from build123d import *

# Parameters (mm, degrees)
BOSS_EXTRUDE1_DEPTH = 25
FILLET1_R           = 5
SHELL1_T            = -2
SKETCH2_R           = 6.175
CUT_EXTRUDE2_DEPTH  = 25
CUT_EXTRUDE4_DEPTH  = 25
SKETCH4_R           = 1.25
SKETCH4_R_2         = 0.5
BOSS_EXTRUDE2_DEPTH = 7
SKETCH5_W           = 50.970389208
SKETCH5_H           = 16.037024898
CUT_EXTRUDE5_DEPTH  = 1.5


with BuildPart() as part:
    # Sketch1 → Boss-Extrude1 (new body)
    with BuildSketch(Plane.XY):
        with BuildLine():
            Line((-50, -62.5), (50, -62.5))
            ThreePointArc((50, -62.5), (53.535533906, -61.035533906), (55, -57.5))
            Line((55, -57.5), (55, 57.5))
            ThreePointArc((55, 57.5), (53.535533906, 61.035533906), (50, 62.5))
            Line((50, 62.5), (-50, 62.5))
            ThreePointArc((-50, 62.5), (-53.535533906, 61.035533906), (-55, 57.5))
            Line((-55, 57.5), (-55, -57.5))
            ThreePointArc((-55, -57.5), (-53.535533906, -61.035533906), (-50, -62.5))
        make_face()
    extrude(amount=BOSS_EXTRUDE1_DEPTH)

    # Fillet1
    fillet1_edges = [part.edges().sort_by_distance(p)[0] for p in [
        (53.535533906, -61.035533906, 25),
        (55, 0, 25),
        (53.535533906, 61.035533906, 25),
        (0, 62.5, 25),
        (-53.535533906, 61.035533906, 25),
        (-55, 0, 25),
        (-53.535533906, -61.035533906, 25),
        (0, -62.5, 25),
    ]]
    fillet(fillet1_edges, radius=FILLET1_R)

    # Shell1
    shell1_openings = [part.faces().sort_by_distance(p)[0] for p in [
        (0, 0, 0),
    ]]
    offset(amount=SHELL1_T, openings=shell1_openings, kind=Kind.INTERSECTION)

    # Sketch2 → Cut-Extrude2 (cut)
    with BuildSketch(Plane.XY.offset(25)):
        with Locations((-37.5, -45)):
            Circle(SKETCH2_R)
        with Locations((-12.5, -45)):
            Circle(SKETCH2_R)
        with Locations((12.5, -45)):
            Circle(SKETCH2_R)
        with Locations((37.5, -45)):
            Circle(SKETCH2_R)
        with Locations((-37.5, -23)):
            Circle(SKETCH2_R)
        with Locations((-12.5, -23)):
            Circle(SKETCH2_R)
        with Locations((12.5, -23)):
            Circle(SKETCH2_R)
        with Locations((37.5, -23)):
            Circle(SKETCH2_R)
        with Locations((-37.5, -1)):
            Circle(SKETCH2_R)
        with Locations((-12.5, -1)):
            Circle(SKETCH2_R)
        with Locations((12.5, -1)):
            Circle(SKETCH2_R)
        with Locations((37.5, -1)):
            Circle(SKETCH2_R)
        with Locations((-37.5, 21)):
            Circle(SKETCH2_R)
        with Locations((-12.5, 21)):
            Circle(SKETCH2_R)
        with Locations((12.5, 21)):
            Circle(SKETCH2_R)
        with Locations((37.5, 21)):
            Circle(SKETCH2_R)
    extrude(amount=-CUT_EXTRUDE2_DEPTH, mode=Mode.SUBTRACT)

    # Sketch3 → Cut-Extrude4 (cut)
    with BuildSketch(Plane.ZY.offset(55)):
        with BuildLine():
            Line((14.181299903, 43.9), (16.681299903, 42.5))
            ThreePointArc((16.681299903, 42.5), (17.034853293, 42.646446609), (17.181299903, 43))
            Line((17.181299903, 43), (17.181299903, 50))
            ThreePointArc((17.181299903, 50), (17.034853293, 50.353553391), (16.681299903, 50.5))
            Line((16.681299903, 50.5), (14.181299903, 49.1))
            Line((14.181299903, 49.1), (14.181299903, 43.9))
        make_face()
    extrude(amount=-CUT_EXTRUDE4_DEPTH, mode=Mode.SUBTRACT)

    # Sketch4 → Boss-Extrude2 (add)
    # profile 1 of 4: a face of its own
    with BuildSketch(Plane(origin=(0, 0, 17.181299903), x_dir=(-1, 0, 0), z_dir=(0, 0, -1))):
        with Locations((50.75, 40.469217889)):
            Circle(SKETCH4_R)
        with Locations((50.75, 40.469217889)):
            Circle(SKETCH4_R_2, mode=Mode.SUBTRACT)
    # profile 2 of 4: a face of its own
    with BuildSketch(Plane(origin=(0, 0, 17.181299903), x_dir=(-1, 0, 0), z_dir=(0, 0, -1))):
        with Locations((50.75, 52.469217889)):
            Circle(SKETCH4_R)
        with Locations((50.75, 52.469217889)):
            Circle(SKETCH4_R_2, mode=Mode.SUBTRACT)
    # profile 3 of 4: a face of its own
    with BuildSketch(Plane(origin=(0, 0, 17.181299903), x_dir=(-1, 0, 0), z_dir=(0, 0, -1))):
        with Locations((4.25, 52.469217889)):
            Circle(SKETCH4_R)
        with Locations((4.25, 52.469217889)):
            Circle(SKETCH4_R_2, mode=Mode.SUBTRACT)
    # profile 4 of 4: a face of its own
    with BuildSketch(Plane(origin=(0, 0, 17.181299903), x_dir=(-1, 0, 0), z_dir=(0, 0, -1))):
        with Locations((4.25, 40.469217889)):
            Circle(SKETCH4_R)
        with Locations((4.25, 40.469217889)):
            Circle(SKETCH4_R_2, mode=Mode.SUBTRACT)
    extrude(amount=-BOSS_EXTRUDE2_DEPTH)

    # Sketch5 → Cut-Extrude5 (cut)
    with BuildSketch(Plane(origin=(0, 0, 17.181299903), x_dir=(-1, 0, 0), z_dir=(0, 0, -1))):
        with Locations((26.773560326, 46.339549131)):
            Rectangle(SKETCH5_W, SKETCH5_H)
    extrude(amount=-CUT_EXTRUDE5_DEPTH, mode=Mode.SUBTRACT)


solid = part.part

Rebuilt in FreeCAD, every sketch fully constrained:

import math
import FreeCAD as App
import Part
import Sketcher

V = App.Vector


def edges_at(feature, points):
    """Names of the edges that pass closest to the given points."""
    edges = feature.Shape.Edges
    near = lambda p: min(range(len(edges)), key=lambda i: edges[i].distToShape(Part.Vertex(*p))[0])
    return sorted({f"Edge{near(p) + 1}" for p in points})


def faces_at(feature, points):
    """Names of the faces that lie closest to the given points."""
    faces = feature.Shape.Faces
    near = lambda p: min(range(len(faces)), key=lambda i: faces[i].distToShape(Part.Vertex(*p))[0])
    return sorted({f"Face{near(p) + 1}" for p in points})

doc = App.newDocument("Part")
params = doc.addObject("Spreadsheet::Sheet", "Params")
for row, (alias, value) in enumerate([
    ("sketch1_radius", "5 mm"),
    ("sketch1_width", "100 mm"),
    ("sketch1_height", "115 mm"),
    ("pad1_length", "25 mm"),
    ("fillet_radius", "5 mm"),
    ("thickness_wall", "2 mm"),
    ("sketch2_diameter", "12.35 mm"),
    ("pocket1_length", "25 mm"),
    ("sketch3_radius", "0.5 mm"),
    ("sketch3_width", "7 mm"),
    ("sketch3_width2", "5.2 mm"),
    ("pocket2_length", "25 mm"),
    ("sketch4_diameter", "1 mm"),
    ("sketch4_diameter2", "2.5 mm"),
    ("pad2_length", "7 mm"),
    ("pocket3_length", "1.5 mm"),
], start=1):
    params.set(f"A{row}", alias)
    params.set(f"B{row}", "=" + value)
    params.setAlias(f"B{row}", alias)

body = doc.addObject("PartDesign::Body", "Body")

sketch1 = body.newObject("Sketcher::SketchObject", "Sketch")
sketch1.AttachmentSupport = (doc.getObject("XY_Plane"), [""])
sketch1.MapMode = "FlatFace"
sketch1.addGeometry(Part.LineSegment(V(-50, -62, 0), V(50, -62, 0)), False)
sketch1.addGeometry(Part.ArcOfCircle(Part.Circle(V(50, -58, 0), V(0, 0, 1), 5), math.radians(-90), math.radians(0)), False)
sketch1.addGeometry(Part.LineSegment(V(55, -58, 0), V(55, 58, 0)), False)
sketch1.addGeometry(Part.ArcOfCircle(Part.Circle(V(50, 58, 0), V(0, 0, 1), 5), math.radians(0), math.radians(90)), False)
sketch1.addGeometry(Part.LineSegment(V(50, 62, 0), V(-50, 62, 0)), False)
sketch1.addGeometry(Part.ArcOfCircle(Part.Circle(V(-50, 58, 0), V(0, 0, 1), 5), math.radians(90), math.radians(180)), False)
sketch1.addGeometry(Part.LineSegment(V(-55, 58, 0), V(-55, -58, 0)), False)
sketch1.addGeometry(Part.ArcOfCircle(Part.Circle(V(-50, -58, 0), V(0, 0, 1), 5), math.radians(180), math.radians(270)), False)
sketch1.addConstraint(Sketcher.Constraint("Tangent", 0, 2, 1, 1))
sketch1.addConstraint(Sketcher.Constraint("Tangent", 1, 2, 2, 1))
sketch1.addConstraint(Sketcher.Constraint("Tangent", 2, 2, 3, 1))
sketch1.addConstraint(Sketcher.Constraint("Tangent", 3, 2, 4, 1))
sketch1.addConstraint(Sketcher.Constraint("Tangent", 4, 2, 5, 1))
sketch1.addConstraint(Sketcher.Constraint("Tangent", 5, 2, 6, 1))
sketch1.addConstraint(Sketcher.Constraint("Tangent", 6, 2, 7, 1))
sketch1.addConstraint(Sketcher.Constraint("Tangent", 7, 2, 0, 1))
sketch1.addConstraint(Sketcher.Constraint("Horizontal", 0))
sketch1.addConstraint(Sketcher.Constraint("Vertical", 2))
sketch1.addConstraint(Sketcher.Constraint("Horizontal", 4))
sketch1.addConstraint(Sketcher.Constraint("Vertical", 6))
sketch1.addConstraint(Sketcher.Constraint("Equal", 1, 3))
sketch1.addConstraint(Sketcher.Constraint("Equal", 3, 5))
sketch1.addConstraint(Sketcher.Constraint("Equal", 5, 7))
sketch1.addConstraint(Sketcher.Constraint("Symmetric", 1, 3, 5, 3, -1, 1))
sketch1.addConstraint(Sketcher.Constraint("Radius", 1, 5.0))
sketch1.addConstraint(Sketcher.Constraint("DistanceX", 0, 1, 0, 2, 100.0))
sketch1.addConstraint(Sketcher.Constraint("DistanceY", 2, 1, 2, 2, 115.0))
sketch1.setExpression("Constraints[16]", "Params.sketch1_radius")
sketch1.setExpression("Constraints[17]", "Params.sketch1_width")
sketch1.setExpression("Constraints[18]", "Params.sketch1_height")
pad1 = body.newObject("PartDesign::Pad", "Pad")
pad1.Profile = sketch1
pad1.setExpression("Length", "Params.pad1_length")
doc.recompute()

fillet = body.newObject("PartDesign::Fillet", "Fillet")
fillet.Base = (pad1, edges_at(pad1, [
    (53.536, -61.036, 25),
    (55, 0, 25),
    (53.536, 61.036, 25),
    (0, 62.5, 25),
    (-53.536, 61.036, 25),
    (-55, 0, 25),
    (-53.536, -61.036, 25),
    (0, -62.5, 25),
]))
fillet.setExpression("Radius", "Params.fillet_radius")
doc.recompute()

thickness = body.newObject("PartDesign::Thickness", "Thickness")
thickness.Base = (fillet, faces_at(fillet, [(0, 0, 0)]))
thickness.setExpression("Value", "Params.thickness_wall")
thickness.Reversed = True
thickness.Join = "Intersection"

sketch2 = body.newObject("Sketcher::SketchObject", "Sketch001")
sketch2.AttachmentSupport = (doc.getObject("XY_Plane"), [""])
sketch2.MapMode = "FlatFace"
sketch2.AttachmentOffset = App.Placement(V(0, 0, 25), App.Rotation())
sketch2.addGeometry(Part.Circle(V(-38, -45, 0), V(0, 0, 1), 6), False)
sketch2.addGeometry(Part.Circle(V(-12, -45, 0), V(0, 0, 1), 6), False)
sketch2.addGeometry(Part.Circle(V(12, -45, 0), V(0, 0, 1), 6), False)
sketch2.addGeometry(Part.Circle(V(38, -45, 0), V(0, 0, 1), 6), False)
sketch2.addGeometry(Part.Circle(V(-38, -23, 0), V(0, 0, 1), 6), False)
sketch2.addGeometry(Part.Circle(V(-12, -23, 0), V(0, 0, 1), 6), False)
sketch2.addGeometry(Part.Circle(V(12, -23, 0), V(0, 0, 1), 6), False)
sketch2.addGeometry(Part.Circle(V(38, -23, 0), V(0, 0, 1), 6), False)
sketch2.addGeometry(Part.Circle(V(-38, -1, 0), V(0, 0, 1), 6), False)
sketch2.addGeometry(Part.Circle(V(-12, -1, 0), V(0, 0, 1), 6), False)
sketch2.addGeometry(Part.Circle(V(12, -1, 0), V(0, 0, 1), 6), False)
sketch2.addGeometry(Part.Circle(V(38, -1, 0), V(0, 0, 1), 6), False)
sketch2.addGeometry(Part.Circle(V(-38, 21, 0), V(0, 0, 1), 6), False)
sketch2.addGeometry(Part.Circle(V(-12, 21, 0), V(0, 0, 1), 6), False)
sketch2.addGeometry(Part.Circle(V(12, 21, 0), V(0, 0, 1), 6), False)
sketch2.addGeometry(Part.Circle(V(38, 21, 0), V(0, 0, 1), 6), False)
sketch2.addConstraint(Sketcher.Constraint("Equal", 0, 1))
sketch2.addConstraint(Sketcher.Constraint("Equal", 1, 2))
sketch2.addConstraint(Sketcher.Constraint("Equal", 2, 3))
sketch2.addConstraint(Sketcher.Constraint("Equal", 3, 4))
sketch2.addConstraint(Sketcher.Constraint("Equal", 4, 5))
sketch2.addConstraint(Sketcher.Constraint("Equal", 5, 6))
sketch2.addConstraint(Sketcher.Constraint("Equal", 6, 7))
sketch2.addConstraint(Sketcher.Constraint("Equal", 7, 8))
sketch2.addConstraint(Sketcher.Constraint("Equal", 8, 9))
sketch2.addConstraint(Sketcher.Constraint("Equal", 9, 10))
sketch2.addConstraint(Sketcher.Constraint("Equal", 10, 11))
sketch2.addConstraint(Sketcher.Constraint("Equal", 11, 12))
sketch2.addConstraint(Sketcher.Constraint("Equal", 12, 13))
sketch2.addConstraint(Sketcher.Constraint("Equal", 13, 14))
sketch2.addConstraint(Sketcher.Constraint("Equal", 14, 15))
sketch2.addConstraint(Sketcher.Constraint("Symmetric", 1, 3, 2, 3, -2))
sketch2.addConstraint(Sketcher.Constraint("Symmetric", 0, 3, 3, 3, -2))
sketch2.addConstraint(Sketcher.Constraint("Symmetric", 5, 3, 6, 3, -2))
sketch2.addConstraint(Sketcher.Constraint("Symmetric", 4, 3, 7, 3, -2))
sketch2.addConstraint(Sketcher.Constraint("Symmetric", 9, 3, 10, 3, -2))
sketch2.addConstraint(Sketcher.Constraint("Symmetric", 8, 3, 11, 3, -2))
sketch2.addConstraint(Sketcher.Constraint("Symmetric", 13, 3, 14, 3, -2))
sketch2.addConstraint(Sketcher.Constraint("Symmetric", 12, 3, 15, 3, -2))
sketch2.addConstraint(Sketcher.Constraint("Horizontal", 0, 3, 1, 3))
sketch2.addConstraint(Sketcher.Constraint("Horizontal", 4, 3, 5, 3))
sketch2.addConstraint(Sketcher.Constraint("Horizontal", 8, 3, 9, 3))
sketch2.addConstraint(Sketcher.Constraint("Horizontal", 12, 3, 13, 3))
sketch2.addConstraint(Sketcher.Constraint("Vertical", 0, 3, 4, 3))
sketch2.addConstraint(Sketcher.Constraint("Vertical", 1, 3, 5, 3))
sketch2.addConstraint(Sketcher.Constraint("Vertical", 4, 3, 8, 3))
sketch2.addConstraint(Sketcher.Constraint("Vertical", 5, 3, 9, 3))
sketch2.addConstraint(Sketcher.Constraint("Vertical", 8, 3, 12, 3))
sketch2.addConstraint(Sketcher.Constraint("Vertical", 9, 3, 13, 3))
sketch2.addConstraint(Sketcher.Constraint("Diameter", 0, 12.35))
sketch2.addConstraint(Sketcher.Constraint("DistanceY", 0, 3, -1, 1, 45.0))
sketch2.addConstraint(Sketcher.Constraint("DistanceY", 4, 3, -1, 1, 23.0))
sketch2.addConstraint(Sketcher.Constraint("DistanceY", 8, 3, -1, 1, 1.0))
sketch2.addConstraint(Sketcher.Constraint("DistanceY", -1, 1, 12, 3, 21.0))
sketch2.addConstraint(Sketcher.Constraint("DistanceX", 0, 3, 1, 3, 25.0))
sketch2.addConstraint(Sketcher.Constraint("DistanceX", 1, 3, 2, 3, 25.0))
sketch2.setExpression("Constraints[33]", "Params.sketch2_diameter")
pocket1 = body.newObject("PartDesign::Pocket", "Pocket")
pocket1.Profile = sketch2
pocket1.setExpression("Length", "Params.pocket1_length")

sketch3 = body.newObject("Sketcher::SketchObject", "Sketch002")
sketch3.AttachmentSupport = (doc.getObject("YZ_Plane"), [""])
sketch3.MapMode = "FlatFace"
sketch3.AttachmentOffset = App.Placement(V(0, 0, -55), App.Rotation())
sketch3.addGeometry(Part.LineSegment(V(43.9, 14.2, 0), V(42.5, 16.7, 0)), False)
sketch3.addGeometry(Part.ArcOfCircle(Part.Circle(V(43, 16.7, 0), V(0, 0, 1), 0.5), math.radians(90), math.radians(180)), False)
sketch3.addGeometry(Part.LineSegment(V(43, 17.2, 0), V(50, 17.2, 0)), False)
sketch3.addGeometry(Part.ArcOfCircle(Part.Circle(V(50, 16.7, 0), V(0, 0, 1), 0.5), math.radians(0), math.radians(90)), False)
sketch3.addGeometry(Part.LineSegment(V(50.5, 16.7, 0), V(49.1, 14.2, 0)), False)
sketch3.addGeometry(Part.LineSegment(V(49.1, 14.2, 0), V(43.9, 14.2, 0)), False)
sketch3.addConstraint(Sketcher.Constraint("Coincident", 0, 2, 1, 2))
sketch3.addConstraint(Sketcher.Constraint("Tangent", 1, 1, 2, 1))
sketch3.addConstraint(Sketcher.Constraint("Tangent", 2, 2, 3, 2))
sketch3.addConstraint(Sketcher.Constraint("Coincident", 3, 1, 4, 1))
sketch3.addConstraint(Sketcher.Constraint("Coincident", 4, 2, 5, 1))
sketch3.addConstraint(Sketcher.Constraint("Coincident", 5, 2, 0, 1))
sketch3.addConstraint(Sketcher.Constraint("Horizontal", 2))
sketch3.addConstraint(Sketcher.Constraint("Horizontal", 5))
sketch3.addConstraint(Sketcher.Constraint("Equal", 1, 3))
sketch3.addConstraint(Sketcher.Constraint("Horizontal", 3, 3, 0, 2))
sketch3.addConstraint(Sketcher.Constraint("Horizontal", 0, 2, 3, 1))
sketch3.addConstraint(Sketcher.Constraint("Equal", 0, 4))
sketch3.addConstraint(Sketcher.Constraint("Radius", 1, 0.5))
sketch3.addConstraint(Sketcher.Constraint("DistanceX", 2, 1, 2, 2, 7.0))
sketch3.addConstraint(Sketcher.Constraint("DistanceX", 5, 2, 5, 1, 5.2))
sketch3.addConstraint(Sketcher.Constraint("DistanceX", -1, 1, 1, 3, 43.0))
sketch3.addConstraint(Sketcher.Constraint("DistanceY", 4, 2, 2, 2, 3.0))
sketch3.addConstraint(Sketcher.Constraint("DistanceY", -1, 1, 1, 3, 16.6813))
sketch3.setExpression("Constraints[12]", "Params.sketch3_radius")
sketch3.setExpression("Constraints[13]", "Params.sketch3_width")
sketch3.setExpression("Constraints[14]", "Params.sketch3_width2")
pocket2 = body.newObject("PartDesign::Pocket", "Pocket001")
pocket2.Profile = sketch3
pocket2.setExpression("Length", "Params.pocket2_length")
pocket2.Reversed = True

sketch4 = body.newObject("Sketcher::SketchObject", "Sketch003")
sketch4.AttachmentSupport = (doc.getObject("XY_Plane"), [""])
sketch4.MapMode = "FlatFace"
sketch4.AttachmentOffset = App.Placement(V(0, 0, 17.1813), App.Rotation())
sketch4.addGeometry(Part.Circle(V(-50.8, 40.5, 0), V(0, 0, 1), 1.2), False)
sketch4.addGeometry(Part.Circle(V(-50.8, 40.5, 0), V(0, 0, 1), 0.5), False)
sketch4.addGeometry(Part.Circle(V(-50.8, 52.5, 0), V(0, 0, 1), 1.2), False)
sketch4.addGeometry(Part.Circle(V(-50.8, 52.5, 0), V(0, 0, 1), 0.5), False)
sketch4.addGeometry(Part.Circle(V(-4.2, 52.5, 0), V(0, 0, 1), 1.2), False)
sketch4.addGeometry(Part.Circle(V(-4.2, 52.5, 0), V(0, 0, 1), 0.5), False)
sketch4.addGeometry(Part.Circle(V(-4.2, 40.5, 0), V(0, 0, 1), 1.2), False)
sketch4.addGeometry(Part.Circle(V(-4.2, 40.5, 0), V(0, 0, 1), 0.5), False)
sketch4.addConstraint(Sketcher.Constraint("Coincident", 1, 3, 0, 3))
sketch4.addConstraint(Sketcher.Constraint("Coincident", 3, 3, 2, 3))
sketch4.addConstraint(Sketcher.Constraint("Coincident", 5, 3, 4, 3))
sketch4.addConstraint(Sketcher.Constraint("Coincident", 7, 3, 6, 3))
sketch4.addConstraint(Sketcher.Constraint("Equal", 0, 2))
sketch4.addConstraint(Sketcher.Constraint("Equal", 1, 3))
sketch4.addConstraint(Sketcher.Constraint("Equal", 2, 4))
sketch4.addConstraint(Sketcher.Constraint("Equal", 3, 5))
sketch4.addConstraint(Sketcher.Constraint("Equal", 4, 6))
sketch4.addConstraint(Sketcher.Constraint("Equal", 5, 7))
sketch4.addConstraint(Sketcher.Constraint("Horizontal", 3, 3, 4, 3))
sketch4.addConstraint(Sketcher.Constraint("Horizontal", 1, 3, 6, 3))
sketch4.addConstraint(Sketcher.Constraint("Vertical", 1, 3, 2, 3))
sketch4.addConstraint(Sketcher.Constraint("Vertical", 5, 3, 6, 3))
sketch4.addConstraint(Sketcher.Constraint("Diameter", 1, 1.0))
sketch4.addConstraint(Sketcher.Constraint("Diameter", 0, 2.5))
sketch4.addConstraint(Sketcher.Constraint("DistanceY", 0, 3, 2, 3, 12.0))
sketch4.addConstraint(Sketcher.Constraint("DistanceX", 2, 3, 4, 3, 46.5))
sketch4.addConstraint(Sketcher.Constraint("DistanceX", 0, 3, -1, 1, 50.75))
sketch4.addConstraint(Sketcher.Constraint("DistanceY", -1, 1, 0, 3, 40.469218))
sketch4.setExpression("Constraints[14]", "Params.sketch4_diameter")
sketch4.setExpression("Constraints[15]", "Params.sketch4_diameter2")
pad2 = body.newObject("PartDesign::Pad", "Pad001")
pad2.Profile = sketch4
pad2.setExpression("Length", "Params.pad2_length")

sketch5 = body.newObject("Sketcher::SketchObject", "Sketch004")
sketch5.AttachmentSupport = (doc.getObject("XY_Plane"), [""])
sketch5.MapMode = "FlatFace"
sketch5.AttachmentOffset = App.Placement(V(0, 0, 17.1813), App.Rotation())
sketch5.addGeometry(Part.LineSegment(V(-1, 54, 0), V(-1, 38, 0)), False)
sketch5.addGeometry(Part.LineSegment(V(-1, 38, 0), V(-52, 38, 0)), False)
sketch5.addGeometry(Part.LineSegment(V(-52, 38, 0), V(-52, 54, 0)), False)
sketch5.addGeometry(Part.LineSegment(V(-52, 54, 0), V(-1, 54, 0)), False)
sketch5.addConstraint(Sketcher.Constraint("Coincident", 0, 2, 1, 1))
sketch5.addConstraint(Sketcher.Constraint("Coincident", 1, 2, 2, 1))
sketch5.addConstraint(Sketcher.Constraint("Coincident", 2, 2, 3, 1))
sketch5.addConstraint(Sketcher.Constraint("Coincident", 3, 2, 0, 1))
sketch5.addConstraint(Sketcher.Constraint("Vertical", 0))
sketch5.addConstraint(Sketcher.Constraint("Horizontal", 1))
sketch5.addConstraint(Sketcher.Constraint("Vertical", 2))
sketch5.addConstraint(Sketcher.Constraint("Horizontal", 3))
sketch5.addConstraint(Sketcher.Constraint("DistanceX", 1, 2, 1, 1, 50.970389))
sketch5.addConstraint(Sketcher.Constraint("DistanceY", 0, 2, 0, 1, 16.037025))
sketch5.addConstraint(Sketcher.Constraint("DistanceY", -1, 1, 2, 2, 54.358062))
sketch5.addConstraint(Sketcher.Constraint("DistanceX", 0, 2, -1, 1, 1.288366))
pocket3 = body.newObject("PartDesign::Pocket", "Pocket002")
pocket3.Profile = sketch5
pocket3.setExpression("Length", "Params.pocket3_length")
pocket3.Reversed = True

doc.recompute()
